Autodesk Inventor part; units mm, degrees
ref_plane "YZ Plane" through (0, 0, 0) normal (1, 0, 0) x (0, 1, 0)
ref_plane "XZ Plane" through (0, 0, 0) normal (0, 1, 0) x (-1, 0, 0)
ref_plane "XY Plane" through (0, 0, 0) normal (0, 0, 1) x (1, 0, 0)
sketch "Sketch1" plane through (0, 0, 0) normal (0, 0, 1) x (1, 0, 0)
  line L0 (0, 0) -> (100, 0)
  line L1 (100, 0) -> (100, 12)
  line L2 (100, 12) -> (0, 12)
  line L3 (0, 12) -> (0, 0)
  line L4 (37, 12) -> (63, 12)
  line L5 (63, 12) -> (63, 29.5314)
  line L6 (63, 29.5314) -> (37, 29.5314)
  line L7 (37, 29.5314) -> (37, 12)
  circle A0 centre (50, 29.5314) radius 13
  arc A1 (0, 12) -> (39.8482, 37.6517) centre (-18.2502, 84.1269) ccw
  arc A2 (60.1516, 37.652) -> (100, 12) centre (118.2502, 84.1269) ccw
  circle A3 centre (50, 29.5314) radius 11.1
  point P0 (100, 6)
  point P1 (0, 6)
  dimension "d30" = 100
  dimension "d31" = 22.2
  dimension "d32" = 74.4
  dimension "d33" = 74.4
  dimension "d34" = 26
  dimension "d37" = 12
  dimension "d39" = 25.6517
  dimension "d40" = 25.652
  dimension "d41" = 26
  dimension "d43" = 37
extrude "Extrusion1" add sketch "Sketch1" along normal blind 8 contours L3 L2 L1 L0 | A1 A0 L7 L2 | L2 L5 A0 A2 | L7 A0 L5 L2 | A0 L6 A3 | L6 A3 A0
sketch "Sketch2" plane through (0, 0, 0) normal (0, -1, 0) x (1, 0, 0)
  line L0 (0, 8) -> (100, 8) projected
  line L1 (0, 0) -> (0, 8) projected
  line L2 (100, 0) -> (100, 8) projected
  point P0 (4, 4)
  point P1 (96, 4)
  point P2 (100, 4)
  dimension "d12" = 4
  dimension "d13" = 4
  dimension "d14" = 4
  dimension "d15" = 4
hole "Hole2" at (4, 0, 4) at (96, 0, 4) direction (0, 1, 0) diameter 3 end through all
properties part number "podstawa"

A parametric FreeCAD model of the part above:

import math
import FreeCAD as App
import Part
import Sketcher

V = App.Vector

doc = App.newDocument("Part")
params = doc.addObject("Spreadsheet::Sheet", "Params")
for row, (alias, value) in enumerate([
    ("sketch1_radius", "13 mm"),
    ("sketch1_diameter", "22.2 mm"),
    ("sketch1_radius2", "74.4 mm"),
    ("sketch1_width", "100 mm"),
    ("sketch1_height", "12 mm"),
    ("pad1_length", "8 mm"),
    ("sketch2_diameter", "3 mm"),
    ("hole_diameter", "3 mm"),
], start=1):
    params.set(f"A{row}", alias)
    params.set(f"B{row}", "=" + value)
    params.setAlias(f"B{row}", alias)

body = doc.addObject("PartDesign::Body", "Body")

# Sketch on XY plane
sketch1 = body.newObject("Sketcher::SketchObject", "Sketch")
sketch1.AttachmentSupport = (doc.getObject("XY_Plane"), [""])
sketch1.MapMode = "FlatFace"
sketch1.addGeometry([
    Part.LineSegment(V(0, 12, 0), V(0, 0, 0)),  # 0
    Part.LineSegment(V(0, 0, 0), V(100, 0, 0)),  # 1
    Part.LineSegment(V(100, 0, 0), V(100, 12, 0)),  # 2
    Part.ArcOfCircle(Part.Circle(V(118.2502, 84.1269, 0), V(0, 0, 1), 74.400025), math.radians(-141.342585), math.radians(-104.199469)),  # 3
    Part.ArcOfCircle(Part.Circle(V(50, 29.5314, 0), V(0, 0, 1), 13), math.radians(38.657468), math.radians(141.344115)),  # 4
    Part.ArcOfCircle(Part.Circle(V(-18.2502, 84.1269, 0), V(0, 0, 1), 74.399997), math.radians(-75.800531), math.radians(-38.657692)),  # 5
    Part.Circle(V(50, 29.5314, 0), V(0, 0, 1), 11.1),  # 6
], False)
sketch1.addConstraint([
    Sketcher.Constraint("Coincident", 0, 2, 1, 1),
    Sketcher.Constraint("Coincident", 1, 2, 2, 1),
    Sketcher.Constraint("Coincident", 2, 2, 3, 2),
    Sketcher.Constraint("Tangent", 3, 1, 4, 1),
    Sketcher.Constraint("Tangent", 4, 2, 5, 2),
    Sketcher.Constraint("Coincident", 5, 1, 0, 1),
    Sketcher.Constraint("Vertical", 0),
    Sketcher.Constraint("Horizontal", 1),
    Sketcher.Constraint("Vertical", 2),
    Sketcher.Constraint("Coincident", 0, 2, -1, 1),
    Sketcher.Constraint("Coincident", 6, 3, 4, 3),
    Sketcher.Constraint("Equal", 3, 5),
    Sketcher.Constraint("Horizontal", 3, 3, 5, 3),
    Sketcher.Constraint("Horizontal", 2, 2, 5, 1),
    Sketcher.Constraint("Radius", 4, 13.0),
    Sketcher.Constraint("Diameter", 6, 22.2),
    Sketcher.Constraint("Radius", 3, 74.4),
    Sketcher.Constraint("DistanceX", 1, 1, 1, 2, 100.0),
    Sketcher.Constraint("DistanceY", 0, 2, 0, 1, 12.0),
    Sketcher.Constraint("DistanceY", 2, 2, 3, 1, 25.652),
])
sketch1.setExpression("Constraints[14]", "Params.sketch1_radius")
sketch1.setExpression("Constraints[15]", "Params.sketch1_diameter")
sketch1.setExpression("Constraints[16]", "Params.sketch1_radius2")
sketch1.setExpression("Constraints[17]", "Params.sketch1_width")
sketch1.setExpression("Constraints[18]", "Params.sketch1_height")
pad1 = body.newObject("PartDesign::Pad", "Pad")
pad1.Profile = sketch1
pad1.setExpression("Length", "Params.pad1_length")

# Sketch on XZ plane
sketch2 = body.newObject("Sketcher::SketchObject", "Sketch001")
sketch2.AttachmentSupport = (doc.getObject("XZ_Plane"), [""])
sketch2.MapMode = "FlatFace"
sketch2.addGeometry([
    Part.Circle(V(4, 4, 0), V(0, 0, 1), 1.5),
    Part.Circle(V(96, 4, 0), V(0, 0, 1), 1.5),
], False)
sketch2.addConstraint([
    Sketcher.Constraint("Equal", 0, 1),
    Sketcher.Constraint("Horizontal", 0, 3, 1, 3),
    Sketcher.Constraint("Diameter", 0, 3.0),
    Sketcher.Constraint("DistanceX", -1, 1, 0, 3, 4.0),
    Sketcher.Constraint("DistanceY", -1, 1, 0, 3, 4.0),
    Sketcher.Constraint("DistanceX", -1, 1, 1, 3, 96.0),
])
sketch2.setExpression("Constraints[2]", "Params.sketch2_diameter")
doc.recompute()
hole = body.newObject("PartDesign::Hole", "Hole")
hole.Profile = sketch2
hole.ThreadType = "None"
hole.setExpression("Diameter", "Params.hole_diameter")
hole.DepthType = "ThroughAll"

doc.recompute()
